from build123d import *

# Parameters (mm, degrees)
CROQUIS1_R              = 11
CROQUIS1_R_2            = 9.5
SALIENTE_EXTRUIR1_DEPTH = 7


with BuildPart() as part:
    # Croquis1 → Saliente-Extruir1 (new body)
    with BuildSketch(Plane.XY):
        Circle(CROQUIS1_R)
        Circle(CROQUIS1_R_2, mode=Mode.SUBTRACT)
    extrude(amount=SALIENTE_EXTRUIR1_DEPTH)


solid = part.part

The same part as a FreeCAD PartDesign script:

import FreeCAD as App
import Part
import Sketcher

doc = App.newDocument("Part")
params = doc.addObject("Spreadsheet::Sheet", "Params")
for row, (alias, value) in enumerate([
    ("sketch1_diameter", "22 mm"),
    ("sketch1_diameter2", "19 mm"),
    ("pad1_length", "7 mm"),
], start=1):
    params.set(f"A{row}", alias)
    params.set(f"B{row}", "=" + value)
    params.setAlias(f"B{row}", alias)

body = doc.addObject("PartDesign::Body", "Body")

sketch1 = body.newObject("Sketcher::SketchObject", "Sketch")
sketch1.AttachmentSupport = (doc.getObject("XY_Plane"), [""])
sketch1.MapMode = "FlatFace"
sketch1.addGeometry([
    Part.Circle(App.Vector(0, 0, 0), App.Vector(0, 0, 1), 11),
    Part.Circle(App.Vector(0, 0, 0), App.Vector(0, 0, 1), 10),
], False)
sketch1.addConstraint([
    Sketcher.Constraint("Coincident", 0, 3, -1, 1),
    Sketcher.Constraint("Coincident", 1, 3, -1, 1),
    Sketcher.Constraint("Diameter", 0, 22.0),
    Sketcher.Constraint("Diameter", 1, 19.0),
])
sketch1.setExpression("Constraints[2]", "Params.sketch1_diameter")
sketch1.setExpression("Constraints[3]", "Params.sketch1_diameter2")
pad1 = body.newObject("PartDesign::Pad", "Pad")
pad1.Profile = sketch1
pad1.setExpression("Length", "Params.pad1_length")

doc.recompute()
